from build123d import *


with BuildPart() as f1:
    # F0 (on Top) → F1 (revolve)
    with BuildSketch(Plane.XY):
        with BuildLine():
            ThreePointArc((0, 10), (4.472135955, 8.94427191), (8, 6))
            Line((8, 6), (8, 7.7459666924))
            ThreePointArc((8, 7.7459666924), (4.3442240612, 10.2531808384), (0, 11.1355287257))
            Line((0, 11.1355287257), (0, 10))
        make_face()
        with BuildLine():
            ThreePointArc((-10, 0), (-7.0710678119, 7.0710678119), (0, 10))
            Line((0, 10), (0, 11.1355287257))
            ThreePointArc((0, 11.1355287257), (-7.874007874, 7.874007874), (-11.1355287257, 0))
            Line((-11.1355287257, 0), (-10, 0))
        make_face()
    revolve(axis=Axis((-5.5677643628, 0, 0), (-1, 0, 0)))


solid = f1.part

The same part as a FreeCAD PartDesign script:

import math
import FreeCAD as App
import Part
import Sketcher

V = App.Vector

doc = App.newDocument("Part")
body = doc.addObject("PartDesign::Body", "Body")

sketch1 = body.newObject("Sketcher::SketchObject", "Sketch")
sketch1.AttachmentSupport = (doc.getObject("XY_Plane"), [""])
sketch1.MapMode = "FlatFace"
sketch1.addGeometry(Part.ArcOfCircle(Part.Circle(V(0, 0, 0), V(0, 0, 1), 10), math.radians(37), math.radians(90)), False)
sketch1.addGeometry(Part.LineSegment(V(8, 6, 0), V(8, 7.7, 0)), False)
sketch1.addGeometry(Part.ArcOfCircle(Part.Circle(V(0, 0, 0), V(0, 0, 1), 11.1), math.radians(44), math.radians(90)), False)
sketch1.addGeometry(Part.ArcOfCircle(Part.Circle(V(0, 0, 0), V(0, 0, 1), 11.1), math.radians(90), math.radians(180)), False)
sketch1.addGeometry(Part.LineSegment(V(-11.1, 0, 0), V(-10, 0, 0)), False)
sketch1.addGeometry(Part.ArcOfCircle(Part.Circle(V(0, 0, 0), V(0, 0, 1), 10), math.radians(90), math.radians(180)), False)
sketch1.addConstraint(Sketcher.Constraint("Coincident", 0, 1, 1, 1))
sketch1.addConstraint(Sketcher.Constraint("Coincident", 1, 2, 2, 1))
sketch1.addConstraint(Sketcher.Constraint("Tangent", 2, 2, 3, 1))
sketch1.addConstraint(Sketcher.Constraint("Coincident", 3, 2, 4, 1))
sketch1.addConstraint(Sketcher.Constraint("Coincident", 4, 2, 5, 2))
sketch1.addConstraint(Sketcher.Constraint("Tangent", 5, 1, 0, 2))
sketch1.addConstraint(Sketcher.Constraint("Vertical", 1))
sketch1.addConstraint(Sketcher.Constraint("Horizontal", 4))
sketch1.addConstraint(Sketcher.Constraint("Coincident", 0, 3, -1, 1))
sketch1.addConstraint(Sketcher.Constraint("Coincident", 2, 3, -1, 1))
sketch1.addConstraint(Sketcher.Constraint("Equal", 2, 3))
sketch1.addConstraint(Sketcher.Constraint("Equal", 0, 5))
sketch1.addConstraint(Sketcher.Constraint("PointOnObject", 2, 2, -2))
sketch1.addConstraint(Sketcher.Constraint("PointOnObject", 3, 2, -1))
sketch1.addConstraint(Sketcher.Constraint("PointOnObject", 5, 1, -2))
sketch1.addConstraint(Sketcher.Constraint("Radius", 0, 10.0))
sketch1.addConstraint(Sketcher.Constraint("DistanceX", -1, 1, 0, 1, 8.0))
sketch1.addConstraint(Sketcher.Constraint("Radius", 2, 11.135529))
revolution = body.newObject("PartDesign::Revolution", "Revolution")
revolution.Profile = sketch1
revolution.ReferenceAxis = (sketch1, ["H_Axis"])
revolution.Angle = 360

doc.recompute()
